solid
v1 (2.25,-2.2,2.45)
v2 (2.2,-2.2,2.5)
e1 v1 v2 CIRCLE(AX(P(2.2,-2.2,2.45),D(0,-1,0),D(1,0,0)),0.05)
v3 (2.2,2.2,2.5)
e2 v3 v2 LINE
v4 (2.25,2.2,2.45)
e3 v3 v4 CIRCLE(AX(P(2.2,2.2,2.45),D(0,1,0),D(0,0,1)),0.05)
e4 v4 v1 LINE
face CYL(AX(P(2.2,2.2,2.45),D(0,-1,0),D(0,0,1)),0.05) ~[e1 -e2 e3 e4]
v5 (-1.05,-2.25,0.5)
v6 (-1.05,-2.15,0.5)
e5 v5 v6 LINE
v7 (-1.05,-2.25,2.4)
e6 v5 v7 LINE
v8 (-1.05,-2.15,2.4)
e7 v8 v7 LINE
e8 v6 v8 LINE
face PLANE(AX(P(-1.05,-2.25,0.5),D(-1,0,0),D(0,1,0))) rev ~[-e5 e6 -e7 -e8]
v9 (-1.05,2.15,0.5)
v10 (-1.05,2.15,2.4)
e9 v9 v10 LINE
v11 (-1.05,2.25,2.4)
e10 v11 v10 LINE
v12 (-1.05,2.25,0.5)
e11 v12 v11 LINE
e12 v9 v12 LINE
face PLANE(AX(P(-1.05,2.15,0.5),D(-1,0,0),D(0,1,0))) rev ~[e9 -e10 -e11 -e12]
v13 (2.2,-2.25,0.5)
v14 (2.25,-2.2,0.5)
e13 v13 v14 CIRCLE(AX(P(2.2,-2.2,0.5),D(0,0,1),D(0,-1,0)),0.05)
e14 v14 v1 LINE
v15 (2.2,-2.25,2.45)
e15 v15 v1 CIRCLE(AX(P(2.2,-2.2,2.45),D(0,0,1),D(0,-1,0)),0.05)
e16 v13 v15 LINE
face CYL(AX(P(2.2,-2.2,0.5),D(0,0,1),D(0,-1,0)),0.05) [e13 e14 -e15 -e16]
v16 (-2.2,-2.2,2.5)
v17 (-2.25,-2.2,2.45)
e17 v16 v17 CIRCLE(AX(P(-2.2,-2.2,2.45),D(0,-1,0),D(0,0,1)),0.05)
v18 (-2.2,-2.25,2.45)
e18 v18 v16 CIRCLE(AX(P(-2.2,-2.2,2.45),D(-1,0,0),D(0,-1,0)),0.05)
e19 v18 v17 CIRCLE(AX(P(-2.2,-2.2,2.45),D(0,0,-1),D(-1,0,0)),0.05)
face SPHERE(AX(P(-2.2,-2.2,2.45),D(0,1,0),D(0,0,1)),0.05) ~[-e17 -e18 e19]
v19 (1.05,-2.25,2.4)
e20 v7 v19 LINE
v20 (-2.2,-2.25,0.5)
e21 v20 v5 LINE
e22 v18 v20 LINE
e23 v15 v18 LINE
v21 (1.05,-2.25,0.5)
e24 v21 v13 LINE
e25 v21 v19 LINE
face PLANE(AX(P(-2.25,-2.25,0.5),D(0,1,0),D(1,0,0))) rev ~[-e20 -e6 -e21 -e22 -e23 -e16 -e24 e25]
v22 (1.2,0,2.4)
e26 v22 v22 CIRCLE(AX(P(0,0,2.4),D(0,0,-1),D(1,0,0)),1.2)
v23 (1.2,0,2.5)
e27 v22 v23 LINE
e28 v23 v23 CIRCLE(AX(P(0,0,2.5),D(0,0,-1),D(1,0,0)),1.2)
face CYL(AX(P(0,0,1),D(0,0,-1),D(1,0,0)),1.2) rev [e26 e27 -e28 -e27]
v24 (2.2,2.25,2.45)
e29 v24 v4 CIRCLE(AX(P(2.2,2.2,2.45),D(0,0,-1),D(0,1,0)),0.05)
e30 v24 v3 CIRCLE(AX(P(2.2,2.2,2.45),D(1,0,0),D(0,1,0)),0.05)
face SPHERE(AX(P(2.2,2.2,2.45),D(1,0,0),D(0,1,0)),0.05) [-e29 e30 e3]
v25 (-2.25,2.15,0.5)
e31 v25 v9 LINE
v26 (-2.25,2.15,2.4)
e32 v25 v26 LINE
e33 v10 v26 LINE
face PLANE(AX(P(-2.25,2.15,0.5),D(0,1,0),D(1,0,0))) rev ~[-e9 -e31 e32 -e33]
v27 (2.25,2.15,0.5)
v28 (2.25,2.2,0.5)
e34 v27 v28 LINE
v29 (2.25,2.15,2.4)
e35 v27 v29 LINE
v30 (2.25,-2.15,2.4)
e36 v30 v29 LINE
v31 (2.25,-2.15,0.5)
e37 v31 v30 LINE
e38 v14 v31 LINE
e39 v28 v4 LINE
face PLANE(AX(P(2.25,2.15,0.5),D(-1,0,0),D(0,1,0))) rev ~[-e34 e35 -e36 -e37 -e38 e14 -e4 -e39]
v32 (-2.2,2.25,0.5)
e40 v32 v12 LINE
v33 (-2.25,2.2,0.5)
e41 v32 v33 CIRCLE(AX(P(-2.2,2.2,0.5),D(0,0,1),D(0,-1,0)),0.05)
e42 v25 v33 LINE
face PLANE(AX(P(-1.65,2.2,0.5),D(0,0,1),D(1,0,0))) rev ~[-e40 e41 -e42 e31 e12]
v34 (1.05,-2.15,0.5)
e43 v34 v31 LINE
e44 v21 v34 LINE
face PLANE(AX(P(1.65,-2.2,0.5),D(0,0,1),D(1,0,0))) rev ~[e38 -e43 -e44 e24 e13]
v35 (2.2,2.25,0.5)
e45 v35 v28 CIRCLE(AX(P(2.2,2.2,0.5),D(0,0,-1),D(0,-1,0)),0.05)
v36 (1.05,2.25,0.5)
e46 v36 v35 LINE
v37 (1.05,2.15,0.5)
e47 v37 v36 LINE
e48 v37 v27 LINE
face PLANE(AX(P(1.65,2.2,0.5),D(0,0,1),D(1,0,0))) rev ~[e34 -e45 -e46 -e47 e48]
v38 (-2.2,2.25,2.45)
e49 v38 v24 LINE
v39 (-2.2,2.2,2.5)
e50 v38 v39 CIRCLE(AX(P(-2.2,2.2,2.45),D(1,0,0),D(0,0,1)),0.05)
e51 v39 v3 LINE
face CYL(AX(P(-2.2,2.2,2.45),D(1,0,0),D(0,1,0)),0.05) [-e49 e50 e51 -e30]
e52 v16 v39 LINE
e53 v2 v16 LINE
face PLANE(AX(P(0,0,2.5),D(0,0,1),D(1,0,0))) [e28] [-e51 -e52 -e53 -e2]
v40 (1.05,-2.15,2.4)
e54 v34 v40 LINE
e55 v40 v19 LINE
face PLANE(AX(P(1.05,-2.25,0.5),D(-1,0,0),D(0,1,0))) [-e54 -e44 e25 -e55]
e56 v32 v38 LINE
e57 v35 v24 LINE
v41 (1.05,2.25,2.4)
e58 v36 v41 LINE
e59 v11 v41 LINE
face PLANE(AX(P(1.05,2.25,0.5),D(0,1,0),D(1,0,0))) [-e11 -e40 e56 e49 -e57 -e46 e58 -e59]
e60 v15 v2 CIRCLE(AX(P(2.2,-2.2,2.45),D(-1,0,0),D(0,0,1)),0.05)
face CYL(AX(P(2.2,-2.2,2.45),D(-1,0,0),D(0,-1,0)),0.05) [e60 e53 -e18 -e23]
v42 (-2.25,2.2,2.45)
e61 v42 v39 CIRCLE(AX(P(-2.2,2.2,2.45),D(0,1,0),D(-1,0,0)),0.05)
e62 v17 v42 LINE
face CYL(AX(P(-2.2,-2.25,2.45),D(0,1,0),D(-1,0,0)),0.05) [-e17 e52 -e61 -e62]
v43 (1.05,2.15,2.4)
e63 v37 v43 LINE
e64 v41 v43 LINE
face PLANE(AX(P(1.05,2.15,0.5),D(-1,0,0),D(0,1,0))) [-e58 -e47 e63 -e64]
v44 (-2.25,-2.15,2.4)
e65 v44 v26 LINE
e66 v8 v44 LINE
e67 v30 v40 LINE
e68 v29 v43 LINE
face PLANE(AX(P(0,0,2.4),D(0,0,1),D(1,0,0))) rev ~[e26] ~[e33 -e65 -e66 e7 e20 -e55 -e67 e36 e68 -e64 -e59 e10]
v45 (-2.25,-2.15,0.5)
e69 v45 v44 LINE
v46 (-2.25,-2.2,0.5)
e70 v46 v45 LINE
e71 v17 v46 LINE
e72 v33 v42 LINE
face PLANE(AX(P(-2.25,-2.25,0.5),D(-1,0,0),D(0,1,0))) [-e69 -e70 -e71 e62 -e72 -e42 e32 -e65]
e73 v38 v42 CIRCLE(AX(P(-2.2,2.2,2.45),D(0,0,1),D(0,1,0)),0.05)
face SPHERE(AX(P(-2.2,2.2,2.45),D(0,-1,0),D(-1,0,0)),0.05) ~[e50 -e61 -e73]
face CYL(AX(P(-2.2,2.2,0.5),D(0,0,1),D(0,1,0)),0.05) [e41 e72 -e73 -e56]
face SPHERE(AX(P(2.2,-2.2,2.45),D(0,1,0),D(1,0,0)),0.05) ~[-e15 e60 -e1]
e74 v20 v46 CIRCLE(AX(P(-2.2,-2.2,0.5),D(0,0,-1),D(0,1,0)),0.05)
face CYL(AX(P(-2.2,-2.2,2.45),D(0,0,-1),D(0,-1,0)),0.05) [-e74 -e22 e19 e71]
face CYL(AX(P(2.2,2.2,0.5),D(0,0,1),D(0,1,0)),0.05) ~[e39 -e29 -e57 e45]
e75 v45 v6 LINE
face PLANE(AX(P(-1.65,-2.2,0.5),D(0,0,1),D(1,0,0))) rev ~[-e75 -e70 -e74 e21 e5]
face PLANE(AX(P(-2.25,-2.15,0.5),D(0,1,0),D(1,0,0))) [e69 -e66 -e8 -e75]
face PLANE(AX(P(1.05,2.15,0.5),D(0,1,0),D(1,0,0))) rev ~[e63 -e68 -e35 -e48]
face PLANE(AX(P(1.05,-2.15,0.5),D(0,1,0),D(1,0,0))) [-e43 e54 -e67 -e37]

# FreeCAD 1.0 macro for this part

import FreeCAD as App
import Part
import Sketcher
Q = App.Units.Quantity


def edges_at(feature, points):
    """Names of the edges that pass closest to the given points."""
    edges = feature.Shape.Edges
    near = lambda p: min(range(len(edges)), key=lambda i: edges[i].distToShape(Part.Vertex(*p))[0])
    return sorted({f"Edge{near(p) + 1}" for p in points})


def add_polygon(sketch, points):
    """Adds a closed chain of lines whose ends are joined by coincident constraints."""
    first, n = sketch.GeometryCount, len(points)
    for a, b in zip(points, points[1:] + points[:1]):
        sketch.addGeometry(Part.LineSegment(App.Vector(*a, 0), App.Vector(*b, 0)), False)
    for i in range(n):
        sketch.addConstraint(Sketcher.Constraint("Coincident", first + i, 2, first + (i + 1) % n, 1))

doc = App.newDocument("Part")
params = doc.addObject("Spreadsheet::Sheet", "Params")
for row, (alias, value) in enumerate([
    ("sketch1_diameter", "2.4 mm"),
    ("pad1_length", "2 mm"),
    ("sketch2_width", "1.2 mm"),
    ("sketch2_height", "0.1 mm"),
    ("pad2_length", "2 mm"),
    ("sketch3_width", "1.2 mm"),
    ("sketch3_height", "0.1 mm"),
    ("pad3_length", "2 mm"),
    ("sketch4_width", "1.2 mm"),
    ("sketch4_height", "0.1 mm"),
    ("pad4_length", "2 mm"),
    ("sketch5_width", "1.2 mm"),
    ("sketch5_height", "0.1 mm"),
    ("pad5_length", "2 mm"),
    ("sketch6_width", "4.5 mm"),
    ("pad6_length", "0.1 mm"),
    ("fillet_radius", "0.05 mm"),
    ("fillet2_radius", "0.05 mm"),
    ("fillet3_radius", "0.05 mm"),
    ("fillet4_radius", "0.05 mm"),
], start=1):
    params.set(f"A{row}", alias)
    params.set(f"B{row}", "=" + value)
    params.setAlias(f"B{row}", alias)

body = doc.addObject("PartDesign::Body", "Body")

# Sketch on XY plane
sketch1 = doc.addObject("Sketcher::SketchObject", "Sketch")
body.addObject(sketch1)
sketch1.AttachmentSupport = (doc.XY_Plane, [""])
sketch1.MapMode = "FlatFace"
sketch1.AttachmentOffset = App.Placement(App.Vector(0, 0, 1), App.Rotation())
sketch1.addGeometry(Part.Circle(App.Vector(0, 0, 0), App.Vector(0, 0, 1), 1.2), False)
sketch1.addConstraint(Sketcher.Constraint("Coincident", 0, 3, -1, 1))
sketch1.addConstraint(Sketcher.Constraint("Diameter", 0, Q("2.4 mm")))
sketch1.setExpression("Constraints[1]", "Params.sketch1_diameter")
pad1 = doc.addObject("PartDesign::Pad", "Pad")
body.addObject(pad1)
pad1.Profile = sketch1
pad1.setExpression("Length", "Params.pad1_length")
body2 = doc.addObject("PartDesign::Body", "Body001")

# Sketch on XY plane
sketch2 = doc.addObject("Sketcher::SketchObject", "Sketch001")
body2.addObject(sketch2)
sketch2.AttachmentSupport = (doc.getObject("XY_Plane001"), [""])
sketch2.MapMode = "FlatFace"
sketch2.AttachmentOffset = App.Placement(App.Vector(0, 0, 0.5), App.Rotation())
add_polygon(sketch2, [(-2.25, -2.15), (-2.25, -2.25), (-1.05, -2.25), (-1.05, -2.15)])  # lines 0-3
sketch2.addConstraint(Sketcher.Constraint("Vertical", 0))
sketch2.addConstraint(Sketcher.Constraint("Horizontal", 1))
sketch2.addConstraint(Sketcher.Constraint("Vertical", 2))
sketch2.addConstraint(Sketcher.Constraint("Horizontal", 3))
sketch2.addConstraint(Sketcher.Constraint("DistanceX", 1, 1, 1, 2, Q("1.2 mm")))
sketch2.addConstraint(Sketcher.Constraint("DistanceY", 0, 2, 0, 1, Q("0.1 mm")))
sketch2.addConstraint(Sketcher.Constraint("DistanceX", 0, 2, -1, 1, Q("2.25 mm")))
sketch2.addConstraint(Sketcher.Constraint("DistanceY", 0, 2, -1, 1, Q("2.25 mm")))
sketch2.setExpression("Constraints[8]", "Params.sketch2_width")
sketch2.setExpression("Constraints[9]", "Params.sketch2_height")
pad2 = doc.addObject("PartDesign::Pad", "Pad001")
body2.addObject(pad2)
pad2.Profile = sketch2
pad2.setExpression("Length", "Params.pad2_length")
body3 = doc.addObject("PartDesign::Body", "Body002")

# Sketch on XY plane
sketch3 = doc.addObject("Sketcher::SketchObject", "Sketch002")
body3.addObject(sketch3)
sketch3.AttachmentSupport = (doc.getObject("XY_Plane002"), [""])
sketch3.MapMode = "FlatFace"
sketch3.AttachmentOffset = App.Placement(App.Vector(0, 0, 0.5), App.Rotation())
add_polygon(sketch3, [(1.05, 2.25), (1.05, 2.15), (2.25, 2.15), (2.25, 2.25)])  # lines 0-3
sketch3.addConstraint(Sketcher.Constraint("Vertical", 0))
sketch3.addConstraint(Sketcher.Constraint("Horizontal", 1))
sketch3.addConstraint(Sketcher.Constraint("Vertical", 2))
sketch3.addConstraint(Sketcher.Constraint("Horizontal", 3))
sketch3.addConstraint(Sketcher.Constraint("DistanceX", 1, 1, 1, 2, Q("1.2 mm")))
sketch3.addConstraint(Sketcher.Constraint("DistanceY", 0, 2, 0, 1, Q("0.1 mm")))
sketch3.addConstraint(Sketcher.Constraint("DistanceX", -1, 1, 0, 2, Q("1.05 mm")))
sketch3.addConstraint(Sketcher.Constraint("DistanceY", -1, 1, 0, 2, Q("2.15 mm")))
sketch3.setExpression("Constraints[8]", "Params.sketch3_width")
sketch3.setExpression("Constraints[9]", "Params.sketch3_height")
pad3 = doc.addObject("PartDesign::Pad", "Pad002")
body3.addObject(pad3)
pad3.Profile = sketch3
pad3.setExpression("Length", "Params.pad3_length")
body4 = doc.addObject("PartDesign::Body", "Body003")

# Sketch on XY plane
sketch4 = doc.addObject("Sketcher::SketchObject", "Sketch003")
body4.addObject(sketch4)
sketch4.AttachmentSupport = (doc.getObject("XY_Plane003"), [""])
sketch4.MapMode = "FlatFace"
sketch4.AttachmentOffset = App.Placement(App.Vector(0, 0, 0.5), App.Rotation())
add_polygon(sketch4, [(-2.25, 2.25), (-2.25, 2.15), (-1.05, 2.15), (-1.05, 2.25)])  # lines 0-3
sketch4.addConstraint(Sketcher.Constraint("Vertical", 0))
sketch4.addConstraint(Sketcher.Constraint("Horizontal", 1))
sketch4.addConstraint(Sketcher.Constraint("Vertical", 2))
sketch4.addConstraint(Sketcher.Constraint("Horizontal", 3))
sketch4.addConstraint(Sketcher.Constraint("DistanceX", 1, 1, 1, 2, Q("1.2 mm")))
sketch4.addConstraint(Sketcher.Constraint("DistanceY", 0, 2, 0, 1, Q("0.1 mm")))
sketch4.addConstraint(Sketcher.Constraint("DistanceX", 0, 2, -1, 1, Q("2.25 mm")))
sketch4.addConstraint(Sketcher.Constraint("DistanceY", -1, 1, 0, 2, Q("2.15 mm")))
sketch4.setExpression("Constraints[8]", "Params.sketch4_width")
sketch4.setExpression("Constraints[9]", "Params.sketch4_height")
pad4 = doc.addObject("PartDesign::Pad", "Pad003")
body4.addObject(pad4)
pad4.Profile = sketch4
pad4.setExpression("Length", "Params.pad4_length")
body5 = doc.addObject("PartDesign::Body", "Body004")

# Sketch on XY plane
sketch5 = doc.addObject("Sketcher::SketchObject", "Sketch004")
body5.addObject(sketch5)
sketch5.AttachmentSupport = (doc.getObject("XY_Plane004"), [""])
sketch5.MapMode = "FlatFace"
sketch5.AttachmentOffset = App.Placement(App.Vector(0, 0, 0.5), App.Rotation())
add_polygon(sketch5, [(1.05, -2.15), (1.05, -2.25), (2.25, -2.25), (2.25, -2.15)])  # lines 0-3
sketch5.addConstraint(Sketcher.Constraint("Vertical", 0))
sketch5.addConstraint(Sketcher.Constraint("Horizontal", 1))
sketch5.addConstraint(Sketcher.Constraint("Vertical", 2))
sketch5.addConstraint(Sketcher.Constraint("Horizontal", 3))
sketch5.addConstraint(Sketcher.Constraint("DistanceX", 1, 1, 1, 2, Q("1.2 mm")))
sketch5.addConstraint(Sketcher.Constraint("DistanceY", 0, 2, 0, 1, Q("0.1 mm")))
sketch5.addConstraint(Sketcher.Constraint("DistanceX", -1, 1, 0, 2, Q("1.05 mm")))
sketch5.addConstraint(Sketcher.Constraint("DistanceY", 0, 2, -1, 1, Q("2.25 mm")))
sketch5.setExpression("Constraints[8]", "Params.sketch5_width")
sketch5.setExpression("Constraints[9]", "Params.sketch5_height")
pad5 = doc.addObject("PartDesign::Pad", "Pad004")
body5.addObject(pad5)
pad5.Profile = sketch5
pad5.setExpression("Length", "Params.pad5_length")
body6 = doc.addObject("PartDesign::Body", "Body005")

# Sketch on XY plane
sketch6 = doc.addObject("Sketcher::SketchObject", "Sketch005")
body6.addObject(sketch6)
sketch6.AttachmentSupport = (doc.getObject("XY_Plane005"), [""])
sketch6.MapMode = "FlatFace"
sketch6.AttachmentOffset = App.Placement(App.Vector(0, 0, 2.4), App.Rotation())
add_polygon(sketch6, [(-2.2, 2.2), (-2.2, -2.2), (2.2, -2.2), (2.2, 2.2)])  # lines 0-3
sketch6.addConstraint(Sketcher.Constraint("Vertical", 0))
sketch6.addConstraint(Sketcher.Constraint("Horizontal", 1))
sketch6.addConstraint(Sketcher.Constraint("Vertical", 2))
sketch6.addConstraint(Sketcher.Constraint("Horizontal", 3))
sketch6.addConstraint(Sketcher.Constraint("Symmetric", 0, 2, 2, 2, -1, 1))
sketch6.addConstraint(Sketcher.Constraint("Equal", 3, 0))
sketch6.addConstraint(Sketcher.Constraint("DistanceX", 1, 1, 1, 2, Q("4.5 mm")))
sketch6.setExpression("Constraints[10]", "Params.sketch6_width")
pad6 = doc.addObject("PartDesign::Pad", "Pad005")
body6.addObject(pad6)
pad6.Profile = sketch6
pad6.setExpression("Length", "Params.pad6_length")
doc.recompute()

boolean = doc.addObject("PartDesign::Boolean", "Boolean")
body6.addObject(boolean)
boolean.Type = "Fuse"
boolean.addObjects([body5])
doc.recompute()

boolean2 = doc.addObject("PartDesign::Boolean", "Boolean001")
body6.addObject(boolean2)
boolean2.Type = "Fuse"
boolean2.addObjects([body4])
doc.recompute()

boolean3 = doc.addObject("PartDesign::Boolean", "Boolean002")
body6.addObject(boolean3)
boolean3.Type = "Fuse"
boolean3.addObjects([body3])
doc.recompute()

boolean4 = doc.addObject("PartDesign::Boolean", "Boolean003")
body6.addObject(boolean4)
boolean4.Type = "Fuse"
boolean4.addObjects([body2])
doc.recompute()

fillet = doc.addObject("PartDesign::Fillet", "Fillet")
body6.addObject(fillet)
fillet.Base = (boolean4, edges_at(boolean4, [(-2.25, 0, 2.5)]))
fillet.setExpression("Radius", "Params.fillet_radius")
doc.recompute()

fillet2 = doc.addObject("PartDesign::Fillet", "Fillet001")
body6.addObject(fillet2)
fillet2.Base = (fillet, edges_at(fillet, [(0.025, 2.25, 2.5)]))
fillet2.setExpression("Radius", "Params.fillet2_radius")
doc.recompute()

fillet3 = doc.addObject("PartDesign::Fillet", "Fillet002")
body6.addObject(fillet3)
fillet3.Base = (fillet2, edges_at(fillet2, [(2.25, -0.025, 2.5)]))
fillet3.setExpression("Radius", "Params.fillet3_radius")
doc.recompute()

fillet4 = doc.addObject("PartDesign::Fillet", "Fillet003")
body6.addObject(fillet4)
fillet4.Base = (fillet3, edges_at(fillet3, [(0, -2.25, 2.5)]))
fillet4.setExpression("Radius", "Params.fillet4_radius")
doc.recompute()

boolean5 = doc.addObject("PartDesign::Boolean", "Boolean004")
body6.addObject(boolean5)
boolean5.Type = "Cut"
boolean5.addObjects([body])

doc.recompute()
